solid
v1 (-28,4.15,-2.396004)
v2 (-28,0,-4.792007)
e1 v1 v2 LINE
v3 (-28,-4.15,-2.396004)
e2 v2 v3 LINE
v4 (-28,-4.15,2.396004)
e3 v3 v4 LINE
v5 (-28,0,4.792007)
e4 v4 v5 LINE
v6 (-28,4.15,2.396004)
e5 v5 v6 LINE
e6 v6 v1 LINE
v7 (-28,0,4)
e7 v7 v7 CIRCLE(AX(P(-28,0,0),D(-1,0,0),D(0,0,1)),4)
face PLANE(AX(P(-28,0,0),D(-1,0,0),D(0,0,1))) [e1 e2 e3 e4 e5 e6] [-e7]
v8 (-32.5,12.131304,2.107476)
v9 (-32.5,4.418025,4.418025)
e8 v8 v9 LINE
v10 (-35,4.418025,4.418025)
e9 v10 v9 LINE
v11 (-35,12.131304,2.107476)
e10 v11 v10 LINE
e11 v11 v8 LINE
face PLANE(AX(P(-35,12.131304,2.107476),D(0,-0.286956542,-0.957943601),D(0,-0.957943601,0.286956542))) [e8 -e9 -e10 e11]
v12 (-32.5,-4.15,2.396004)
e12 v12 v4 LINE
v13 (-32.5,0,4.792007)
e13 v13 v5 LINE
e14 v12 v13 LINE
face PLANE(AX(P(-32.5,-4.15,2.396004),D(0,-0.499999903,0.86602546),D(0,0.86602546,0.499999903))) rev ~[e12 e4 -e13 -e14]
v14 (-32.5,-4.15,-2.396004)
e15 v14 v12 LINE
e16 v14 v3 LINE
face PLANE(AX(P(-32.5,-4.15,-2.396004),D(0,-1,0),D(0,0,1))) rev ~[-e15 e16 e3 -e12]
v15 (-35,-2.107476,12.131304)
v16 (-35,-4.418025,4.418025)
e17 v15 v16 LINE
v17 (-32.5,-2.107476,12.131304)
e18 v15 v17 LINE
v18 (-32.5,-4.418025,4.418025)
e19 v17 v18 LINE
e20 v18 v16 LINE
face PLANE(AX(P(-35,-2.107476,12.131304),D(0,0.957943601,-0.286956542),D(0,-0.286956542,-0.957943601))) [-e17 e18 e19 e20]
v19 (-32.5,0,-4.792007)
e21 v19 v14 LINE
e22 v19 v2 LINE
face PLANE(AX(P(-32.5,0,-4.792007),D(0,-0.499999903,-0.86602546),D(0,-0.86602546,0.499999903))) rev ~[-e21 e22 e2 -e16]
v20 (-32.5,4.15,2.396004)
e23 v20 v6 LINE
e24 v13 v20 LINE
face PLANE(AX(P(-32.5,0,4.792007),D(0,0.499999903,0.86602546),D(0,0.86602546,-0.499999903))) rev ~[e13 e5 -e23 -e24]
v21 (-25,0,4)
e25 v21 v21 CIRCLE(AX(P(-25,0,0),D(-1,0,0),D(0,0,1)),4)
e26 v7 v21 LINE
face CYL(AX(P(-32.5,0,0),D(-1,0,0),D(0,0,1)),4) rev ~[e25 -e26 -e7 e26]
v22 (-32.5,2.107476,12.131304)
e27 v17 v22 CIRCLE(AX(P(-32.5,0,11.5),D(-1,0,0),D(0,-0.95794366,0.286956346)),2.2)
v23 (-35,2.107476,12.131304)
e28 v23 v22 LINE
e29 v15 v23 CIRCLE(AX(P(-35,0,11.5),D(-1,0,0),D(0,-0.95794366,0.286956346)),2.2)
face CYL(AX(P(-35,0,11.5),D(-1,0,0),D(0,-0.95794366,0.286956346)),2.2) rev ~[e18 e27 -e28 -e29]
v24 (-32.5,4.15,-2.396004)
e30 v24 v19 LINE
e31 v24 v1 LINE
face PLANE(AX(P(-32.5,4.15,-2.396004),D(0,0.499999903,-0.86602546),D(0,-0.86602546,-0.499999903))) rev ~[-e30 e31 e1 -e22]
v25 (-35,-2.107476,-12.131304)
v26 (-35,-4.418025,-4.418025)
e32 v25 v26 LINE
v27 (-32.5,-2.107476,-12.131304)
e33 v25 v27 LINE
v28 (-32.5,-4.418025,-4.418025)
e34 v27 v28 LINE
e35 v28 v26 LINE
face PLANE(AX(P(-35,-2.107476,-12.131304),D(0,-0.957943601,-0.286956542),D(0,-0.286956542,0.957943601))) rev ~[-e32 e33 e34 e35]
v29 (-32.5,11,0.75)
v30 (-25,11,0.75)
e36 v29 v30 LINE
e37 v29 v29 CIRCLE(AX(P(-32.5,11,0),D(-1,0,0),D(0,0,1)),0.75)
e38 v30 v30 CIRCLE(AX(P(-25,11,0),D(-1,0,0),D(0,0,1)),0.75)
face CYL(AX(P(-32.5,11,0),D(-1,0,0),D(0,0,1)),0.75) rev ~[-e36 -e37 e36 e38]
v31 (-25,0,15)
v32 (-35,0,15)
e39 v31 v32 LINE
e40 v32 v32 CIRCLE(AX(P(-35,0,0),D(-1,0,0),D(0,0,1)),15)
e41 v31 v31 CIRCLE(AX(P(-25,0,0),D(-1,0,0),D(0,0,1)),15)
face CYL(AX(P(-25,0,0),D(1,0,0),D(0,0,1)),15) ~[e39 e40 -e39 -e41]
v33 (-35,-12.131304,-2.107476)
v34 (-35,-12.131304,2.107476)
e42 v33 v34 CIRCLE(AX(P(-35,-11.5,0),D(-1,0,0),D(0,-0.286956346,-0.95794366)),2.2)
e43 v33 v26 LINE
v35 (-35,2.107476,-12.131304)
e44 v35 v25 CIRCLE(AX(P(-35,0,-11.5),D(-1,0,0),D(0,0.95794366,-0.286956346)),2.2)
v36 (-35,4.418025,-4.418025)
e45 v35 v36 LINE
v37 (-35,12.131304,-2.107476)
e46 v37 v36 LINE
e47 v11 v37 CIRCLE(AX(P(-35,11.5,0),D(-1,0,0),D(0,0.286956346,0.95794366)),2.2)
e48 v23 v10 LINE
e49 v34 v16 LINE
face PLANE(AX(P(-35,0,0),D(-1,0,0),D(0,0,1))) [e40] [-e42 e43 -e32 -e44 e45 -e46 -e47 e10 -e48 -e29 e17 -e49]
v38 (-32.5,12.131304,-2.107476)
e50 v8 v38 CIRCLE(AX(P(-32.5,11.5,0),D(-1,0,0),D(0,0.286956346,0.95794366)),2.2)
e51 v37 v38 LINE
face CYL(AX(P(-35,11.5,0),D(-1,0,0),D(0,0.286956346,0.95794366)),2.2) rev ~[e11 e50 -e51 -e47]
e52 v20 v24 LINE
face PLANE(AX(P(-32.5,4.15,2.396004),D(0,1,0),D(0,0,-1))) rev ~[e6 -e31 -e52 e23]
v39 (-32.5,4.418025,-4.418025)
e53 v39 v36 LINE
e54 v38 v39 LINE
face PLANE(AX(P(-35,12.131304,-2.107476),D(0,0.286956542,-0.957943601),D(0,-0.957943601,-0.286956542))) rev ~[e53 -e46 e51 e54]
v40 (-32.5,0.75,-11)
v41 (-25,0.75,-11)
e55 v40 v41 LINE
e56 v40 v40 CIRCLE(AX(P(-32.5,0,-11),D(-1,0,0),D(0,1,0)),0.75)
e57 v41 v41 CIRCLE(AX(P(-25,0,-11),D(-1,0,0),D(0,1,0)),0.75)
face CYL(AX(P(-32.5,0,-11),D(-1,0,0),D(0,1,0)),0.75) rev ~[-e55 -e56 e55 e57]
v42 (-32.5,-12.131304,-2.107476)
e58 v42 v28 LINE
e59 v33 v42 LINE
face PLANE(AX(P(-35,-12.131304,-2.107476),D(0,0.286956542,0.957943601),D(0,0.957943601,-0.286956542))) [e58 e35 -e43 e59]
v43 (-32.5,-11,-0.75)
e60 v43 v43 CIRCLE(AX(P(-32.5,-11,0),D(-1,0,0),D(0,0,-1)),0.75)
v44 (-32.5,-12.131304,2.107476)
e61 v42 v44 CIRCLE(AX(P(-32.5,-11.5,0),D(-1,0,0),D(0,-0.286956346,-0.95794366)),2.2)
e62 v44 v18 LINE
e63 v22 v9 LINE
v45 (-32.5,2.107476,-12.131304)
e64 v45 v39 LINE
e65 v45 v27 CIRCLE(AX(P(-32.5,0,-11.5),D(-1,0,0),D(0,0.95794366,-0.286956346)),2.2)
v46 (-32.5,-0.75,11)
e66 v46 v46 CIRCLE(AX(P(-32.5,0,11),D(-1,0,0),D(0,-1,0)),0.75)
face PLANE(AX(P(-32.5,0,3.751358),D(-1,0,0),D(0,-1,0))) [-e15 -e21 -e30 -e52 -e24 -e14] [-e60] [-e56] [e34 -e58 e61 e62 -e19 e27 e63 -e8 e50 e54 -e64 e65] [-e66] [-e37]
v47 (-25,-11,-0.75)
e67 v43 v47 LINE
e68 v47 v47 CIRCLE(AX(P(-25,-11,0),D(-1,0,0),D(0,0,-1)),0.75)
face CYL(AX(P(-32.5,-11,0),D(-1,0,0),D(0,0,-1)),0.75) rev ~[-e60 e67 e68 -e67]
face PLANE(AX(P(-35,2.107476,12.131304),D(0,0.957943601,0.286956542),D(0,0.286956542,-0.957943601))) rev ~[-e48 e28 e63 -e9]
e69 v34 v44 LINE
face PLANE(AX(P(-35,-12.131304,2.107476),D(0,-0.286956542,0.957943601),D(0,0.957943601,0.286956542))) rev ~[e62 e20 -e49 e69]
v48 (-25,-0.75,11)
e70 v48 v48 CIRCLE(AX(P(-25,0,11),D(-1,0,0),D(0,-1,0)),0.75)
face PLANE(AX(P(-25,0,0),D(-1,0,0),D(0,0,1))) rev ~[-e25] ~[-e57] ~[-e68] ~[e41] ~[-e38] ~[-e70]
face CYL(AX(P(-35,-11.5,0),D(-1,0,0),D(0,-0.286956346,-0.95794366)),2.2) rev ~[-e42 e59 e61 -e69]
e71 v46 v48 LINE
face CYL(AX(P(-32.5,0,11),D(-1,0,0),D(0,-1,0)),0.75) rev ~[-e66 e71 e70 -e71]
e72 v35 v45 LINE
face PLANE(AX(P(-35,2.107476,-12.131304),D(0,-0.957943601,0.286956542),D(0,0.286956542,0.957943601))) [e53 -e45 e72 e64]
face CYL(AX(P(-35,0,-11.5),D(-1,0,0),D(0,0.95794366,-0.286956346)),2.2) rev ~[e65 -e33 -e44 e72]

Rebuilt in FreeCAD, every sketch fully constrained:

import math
import FreeCAD as App
import Part
import Sketcher

V = App.Vector
Q = App.Units.Quantity


def add_polygon(sketch, points):
    """Adds a closed chain of lines whose ends are joined by coincident constraints."""
    first, n = sketch.GeometryCount, len(points)
    for a, b in zip(points, points[1:] + points[:1]):
        sketch.addGeometry(Part.LineSegment(App.Vector(*a, 0), App.Vector(*b, 0)), False)
    for i in range(n):
        sketch.addConstraint(Sketcher.Constraint("Coincident", first + i, 2, first + (i + 1) % n, 1))

doc = App.newDocument("Part")
body = doc.addObject("PartDesign::Body", "Body")

# Sketch on XY plane
sketch1 = body.newObject("Sketcher::SketchObject", "Sketch")
sketch1.AttachmentSupport = (doc.getObject("XY_Plane"), [""])
sketch1.MapMode = "FlatFace"
sketch1.addGeometry(Part.Circle(V(0, 0, 0), V(0, 0, 1), 15), False)
sketch1.addConstraint(Sketcher.Constraint("Coincident", 0, 3, -1, 1))
sketch1.addConstraint(Sketcher.Constraint("Diameter", 0, 30.0))
pad1 = body.newObject("PartDesign::Pad", "Pad")
pad1.Profile = sketch1
pad1.Length = 10

# Sketch on XY plane
sketch2 = body.newObject("Sketcher::SketchObject", "Sketch001")
sketch2.AttachmentSupport = (doc.getObject("XY_Plane"), [""])
sketch2.MapMode = "FlatFace"
sketch2.AttachmentOffset = App.Placement(V(0, 0, 10), App.Rotation())
sketch2.addGeometry(Part.ArcOfCircle(Part.Circle(V(0, 0, 0), V(0, 0, 1), 5.5), math.radians(163.324166), math.radians(376.675834)), False)
sketch2.addGeometry(Part.LineSegment(V(5.26869, 1.578261, 0), V(2.107476, 12.131304, 0)), False)
sketch2.addGeometry(Part.ArcOfCircle(Part.Circle(V(0, 11.5, 0), V(0, 0, 1), 2.2), math.radians(16.675824), math.radians(163.324176)), False)
sketch2.addGeometry(Part.LineSegment(V(-2.107476, 12.131304, 0), V(-5.26869, 1.578261, 0)), False)
sketch2.addConstraint(Sketcher.Constraint("Tangent", 0, 2, 1, 1))
sketch2.addConstraint(Sketcher.Constraint("Tangent", 1, 2, 2, 1))
sketch2.addConstraint(Sketcher.Constraint("Tangent", 2, 2, 3, 1))
sketch2.addConstraint(Sketcher.Constraint("Tangent", 3, 2, 0, 1))
sketch2.addConstraint(Sketcher.Constraint("Coincident", 0, 3, -1, 1))
sketch2.addConstraint(Sketcher.Constraint("PointOnObject", 2, 3, -2))
sketch2.addConstraint(Sketcher.Constraint("Radius", 0, 5.5))
sketch2.addConstraint(Sketcher.Constraint("Radius", 2, 2.2))
sketch2.addConstraint(Sketcher.Constraint("DistanceY", -1, 1, 2, 3, 11.5))
pocket1 = body.newObject("PartDesign::Pocket", "Pocket")
pocket1.Profile = sketch2
pocket1.Length = 2.5
doc.recompute()

polarpattern = body.newObject("PartDesign::PolarPattern", "PolarPattern")
polarpattern.Originals = [pocket1]
polarpattern.Axis = (doc.getObject("Z_Axis"), [""])
polarpattern.Angle = 360
polarpattern.Occurrences = 4
body.Tip = polarpattern

# Sketch on XY plane
sketch3 = body.newObject("Sketcher::SketchObject", "Sketch002")
sketch3.AttachmentSupport = (doc.getObject("XY_Plane"), [""])
sketch3.MapMode = "FlatFace"
sketch3.AttachmentOffset = App.Placement(V(0, 0, 7.5), App.Rotation())
sketch3.addGeometry(Part.Circle(V(0, 11, 0), V(0, 0, 1), 0.75), False)
sketch3.addConstraint(Sketcher.Constraint("PointOnObject", 0, 3, -2))
sketch3.addConstraint(Sketcher.Constraint("Diameter", 0, 1.5))
sketch3.addConstraint(Sketcher.Constraint("DistanceY", -1, 1, 0, 3, 11.0))
pocket2 = body.newObject("PartDesign::Pocket", "Pocket001")
pocket2.Profile = sketch3
pocket2.Length = 25
doc.recompute()

polarpattern2 = body.newObject("PartDesign::PolarPattern", "PolarPattern001")
polarpattern2.Originals = [pocket2]
polarpattern2.Axis = (doc.getObject("Z_Axis"), [""])
polarpattern2.Angle = 360
polarpattern2.Occurrences = 4
body.Tip = polarpattern2

# Sketch on XY plane
sketch4 = body.newObject("Sketcher::SketchObject", "Sketch003")
sketch4.AttachmentSupport = (doc.getObject("XY_Plane"), [""])
sketch4.MapMode = "FlatFace"
sketch4.AttachmentOffset = App.Placement(V(0, 0, 7.5), App.Rotation())
sketch4.addGeometry(Part.Circle(V(0, 0, 0), V(0, 0, 1), 4), False)
sketch4.addConstraint(Sketcher.Constraint("Coincident", 0, 3, -1, 1))
sketch4.addConstraint(Sketcher.Constraint("Diameter", 0, 8.0))
pocket3 = body.newObject("PartDesign::Pocket", "Pocket002")
pocket3.Profile = sketch4
pocket3.Type = "ThroughAll"

# Sketch on XY plane
sketch5 = body.newObject("Sketcher::SketchObject", "Sketch004")
sketch5.AttachmentSupport = (doc.getObject("XY_Plane"), [""])
sketch5.MapMode = "FlatFace"
sketch5.AttachmentOffset = App.Placement(V(0, 0, 7.5), App.Rotation())
add_polygon(sketch5, [(-2.396004, 4.15), (-4.792007, 0), (-2.396004, -4.15), (2.396004, -4.15), (4.792007, 0), (2.396004, 4.15)])  # lines 0-5
sketch5.addConstraint(Sketcher.Constraint("Horizontal", 2))
sketch5.addConstraint(Sketcher.Constraint("Horizontal", 5))
sketch5.addConstraint(Sketcher.Constraint("Symmetric", 0, 2, 3, 2, -1, 1))
sketch5.addConstraint(Sketcher.Constraint("Symmetric", 1, 2, 4, 2, -1, 1))
sketch5.addConstraint(Sketcher.Constraint("PointOnObject", 0, 2, -1))
sketch5.addConstraint(Sketcher.Constraint("Parallel", 0, 3))
sketch5.addConstraint(Sketcher.Constraint("Vertical", 2, 2, 4, 2))
sketch5.addConstraint(Sketcher.Constraint("Angle", 0, Q("-119.999994 deg")))
sketch5.addConstraint(Sketcher.Constraint("DistanceY", 2, 2, 4, 2, 8.3))
sketch5.addConstraint(Sketcher.Constraint("DistanceX", 2, 1, 2, 2, 4.792008))
pocket4 = body.newObject("PartDesign::Pocket", "Pocket003")
pocket4.Profile = sketch5
pocket4.Length = 4.5
body2 = doc.addObject("PartDesign::Body", "Body001")
doc.recompute()

body.Placement = App.Placement(V(-25, 0, 0), App.Rotation(V(0, -1, 0), 90))
boolean = body2.newObject("PartDesign::Boolean", "Boolean")
boolean.Type = "Fuse"
boolean.addObjects([body])

doc.recompute()
